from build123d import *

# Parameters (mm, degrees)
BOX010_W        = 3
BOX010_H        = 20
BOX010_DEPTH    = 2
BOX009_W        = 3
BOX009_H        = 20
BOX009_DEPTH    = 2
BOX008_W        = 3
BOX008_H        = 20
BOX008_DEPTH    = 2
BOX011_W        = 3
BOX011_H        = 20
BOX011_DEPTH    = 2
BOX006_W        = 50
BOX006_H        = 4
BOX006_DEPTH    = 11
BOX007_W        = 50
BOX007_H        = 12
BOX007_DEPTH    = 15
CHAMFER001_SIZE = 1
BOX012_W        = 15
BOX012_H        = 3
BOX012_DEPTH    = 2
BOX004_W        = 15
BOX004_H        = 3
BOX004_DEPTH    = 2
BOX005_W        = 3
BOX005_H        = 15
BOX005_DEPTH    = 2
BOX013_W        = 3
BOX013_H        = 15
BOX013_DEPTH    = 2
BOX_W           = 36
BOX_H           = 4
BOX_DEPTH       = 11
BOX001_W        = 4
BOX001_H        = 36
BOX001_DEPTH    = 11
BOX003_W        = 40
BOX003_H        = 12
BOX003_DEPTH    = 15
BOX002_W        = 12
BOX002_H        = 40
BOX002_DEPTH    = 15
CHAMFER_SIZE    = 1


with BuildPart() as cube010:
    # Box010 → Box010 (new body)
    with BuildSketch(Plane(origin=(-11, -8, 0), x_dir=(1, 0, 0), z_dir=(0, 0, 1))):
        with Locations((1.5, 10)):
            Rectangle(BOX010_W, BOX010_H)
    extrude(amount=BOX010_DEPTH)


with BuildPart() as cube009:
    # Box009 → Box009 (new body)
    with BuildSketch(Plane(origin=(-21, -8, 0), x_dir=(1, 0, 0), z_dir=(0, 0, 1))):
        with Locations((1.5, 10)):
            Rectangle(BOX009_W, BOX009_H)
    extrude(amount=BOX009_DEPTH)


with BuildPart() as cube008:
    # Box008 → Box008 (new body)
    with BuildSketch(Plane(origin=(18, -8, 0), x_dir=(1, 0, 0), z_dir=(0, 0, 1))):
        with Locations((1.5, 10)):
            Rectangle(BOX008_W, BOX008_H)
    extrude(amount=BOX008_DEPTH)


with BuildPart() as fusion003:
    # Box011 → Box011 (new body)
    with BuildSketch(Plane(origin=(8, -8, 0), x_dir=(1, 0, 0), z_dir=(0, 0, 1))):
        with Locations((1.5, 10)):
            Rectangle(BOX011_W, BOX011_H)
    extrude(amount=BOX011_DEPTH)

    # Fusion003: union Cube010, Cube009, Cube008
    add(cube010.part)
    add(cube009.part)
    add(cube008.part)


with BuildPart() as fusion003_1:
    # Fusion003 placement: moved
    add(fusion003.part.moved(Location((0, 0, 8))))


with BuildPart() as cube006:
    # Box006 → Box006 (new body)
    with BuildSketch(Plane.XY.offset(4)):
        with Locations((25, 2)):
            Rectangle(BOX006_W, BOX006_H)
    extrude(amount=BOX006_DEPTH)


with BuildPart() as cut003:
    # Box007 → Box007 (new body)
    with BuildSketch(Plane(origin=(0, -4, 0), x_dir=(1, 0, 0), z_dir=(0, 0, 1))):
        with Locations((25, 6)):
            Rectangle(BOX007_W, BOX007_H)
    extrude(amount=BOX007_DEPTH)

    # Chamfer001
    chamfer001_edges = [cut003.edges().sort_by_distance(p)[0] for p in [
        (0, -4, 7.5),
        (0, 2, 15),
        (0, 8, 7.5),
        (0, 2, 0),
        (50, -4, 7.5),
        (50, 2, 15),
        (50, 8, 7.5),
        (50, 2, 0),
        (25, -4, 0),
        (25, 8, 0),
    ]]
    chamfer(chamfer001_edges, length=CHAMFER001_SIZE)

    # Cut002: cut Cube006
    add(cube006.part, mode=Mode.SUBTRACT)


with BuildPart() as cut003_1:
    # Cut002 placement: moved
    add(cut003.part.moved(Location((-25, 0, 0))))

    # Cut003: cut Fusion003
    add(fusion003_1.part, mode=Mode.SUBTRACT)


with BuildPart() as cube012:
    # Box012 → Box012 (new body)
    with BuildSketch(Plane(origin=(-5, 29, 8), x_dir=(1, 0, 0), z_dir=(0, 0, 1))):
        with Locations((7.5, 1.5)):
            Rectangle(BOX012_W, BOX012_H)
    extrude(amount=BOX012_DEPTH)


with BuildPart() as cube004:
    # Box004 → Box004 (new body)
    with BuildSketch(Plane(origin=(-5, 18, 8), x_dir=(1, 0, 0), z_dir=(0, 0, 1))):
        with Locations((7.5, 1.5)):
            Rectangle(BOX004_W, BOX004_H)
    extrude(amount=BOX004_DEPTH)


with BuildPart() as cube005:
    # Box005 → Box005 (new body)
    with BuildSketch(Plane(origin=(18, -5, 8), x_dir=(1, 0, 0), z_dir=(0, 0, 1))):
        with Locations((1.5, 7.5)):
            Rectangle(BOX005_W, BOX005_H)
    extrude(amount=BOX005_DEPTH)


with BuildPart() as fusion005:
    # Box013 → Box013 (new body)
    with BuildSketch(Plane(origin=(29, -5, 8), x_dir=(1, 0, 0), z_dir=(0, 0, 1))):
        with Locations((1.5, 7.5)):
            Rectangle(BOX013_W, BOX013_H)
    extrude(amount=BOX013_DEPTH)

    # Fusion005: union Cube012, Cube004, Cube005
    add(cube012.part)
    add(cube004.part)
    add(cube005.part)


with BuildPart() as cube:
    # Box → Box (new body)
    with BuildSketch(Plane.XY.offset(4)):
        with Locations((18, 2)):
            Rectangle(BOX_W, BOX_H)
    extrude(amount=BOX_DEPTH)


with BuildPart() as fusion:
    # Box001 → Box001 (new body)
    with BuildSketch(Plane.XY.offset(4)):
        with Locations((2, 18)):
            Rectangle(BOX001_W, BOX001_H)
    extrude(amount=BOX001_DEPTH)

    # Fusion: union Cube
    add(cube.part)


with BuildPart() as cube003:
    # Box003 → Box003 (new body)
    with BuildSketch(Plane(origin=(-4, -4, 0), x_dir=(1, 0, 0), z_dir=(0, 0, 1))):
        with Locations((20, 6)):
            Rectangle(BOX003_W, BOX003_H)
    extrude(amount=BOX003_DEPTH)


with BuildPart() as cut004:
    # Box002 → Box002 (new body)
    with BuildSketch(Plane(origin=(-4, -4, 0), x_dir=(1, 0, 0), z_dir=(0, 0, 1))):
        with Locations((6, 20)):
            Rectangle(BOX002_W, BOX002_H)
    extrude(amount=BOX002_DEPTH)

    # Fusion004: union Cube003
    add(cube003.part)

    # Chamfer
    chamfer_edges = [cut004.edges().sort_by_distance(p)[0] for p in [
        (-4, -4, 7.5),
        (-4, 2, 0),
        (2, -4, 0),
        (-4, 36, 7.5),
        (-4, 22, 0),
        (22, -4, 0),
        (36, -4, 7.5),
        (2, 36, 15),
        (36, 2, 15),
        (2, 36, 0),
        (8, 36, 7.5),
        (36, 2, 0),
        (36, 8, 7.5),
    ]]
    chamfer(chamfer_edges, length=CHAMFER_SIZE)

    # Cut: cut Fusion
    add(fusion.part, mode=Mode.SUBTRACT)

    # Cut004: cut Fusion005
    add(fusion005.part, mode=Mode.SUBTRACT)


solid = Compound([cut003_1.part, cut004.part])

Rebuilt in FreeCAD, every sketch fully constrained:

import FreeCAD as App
import Part
import Sketcher


def edges_at(feature, points):
    """Names of the edges that pass closest to the given points."""
    edges = feature.Shape.Edges
    near = lambda p: min(range(len(edges)), key=lambda i: edges[i].distToShape(Part.Vertex(*p))[0])
    return sorted({f"Edge{near(p) + 1}" for p in points})


def add_polygon(sketch, points):
    """Adds a closed chain of lines whose ends are joined by coincident constraints."""
    first, n = sketch.GeometryCount, len(points)
    for a, b in zip(points, points[1:] + points[:1]):
        sketch.addGeometry(Part.LineSegment(App.Vector(*a, 0), App.Vector(*b, 0)), False)
    for i in range(n):
        sketch.addConstraint(Sketcher.Constraint("Coincident", first + i, 2, first + (i + 1) % n, 1))

doc = App.newDocument("Part")
params = doc.addObject("Spreadsheet::Sheet", "Params")
for row, (alias, value) in enumerate([
    ("sketch1_width", "3 mm"),
    ("sketch1_height", "20 mm"),
    ("pad1_length", "2 mm"),
    ("sketch2_width", "3 mm"),
    ("sketch2_height", "20 mm"),
    ("pad2_length", "2 mm"),
    ("sketch3_width", "3 mm"),
    ("sketch3_height", "20 mm"),
    ("pad3_length", "2 mm"),
    ("sketch4_width", "3 mm"),
    ("sketch4_height", "20 mm"),
    ("pad4_length", "2 mm"),
    ("sketch5_width", "50 mm"),
    ("sketch5_height", "4 mm"),
    ("pad5_length", "11 mm"),
    ("sketch6_width", "50 mm"),
    ("sketch6_height", "12 mm"),
    ("pad6_length", "15 mm"),
    ("chamfer_size", "1 mm"),
    ("sketch7_width", "15 mm"),
    ("sketch7_height", "3 mm"),
    ("pad7_length", "2 mm"),
    ("sketch8_width", "15 mm"),
    ("sketch8_height", "3 mm"),
    ("pad8_length", "2 mm"),
    ("sketch9_width", "3 mm"),
    ("sketch9_height", "15 mm"),
    ("pad9_length", "2 mm"),
    ("sketch10_width", "3 mm"),
    ("sketch10_height", "15 mm"),
    ("pad10_length", "2 mm"),
    ("sketch11_width", "36 mm"),
    ("sketch11_height", "4 mm"),
    ("pad11_length", "11 mm"),
    ("sketch12_width", "4 mm"),
    ("sketch12_height", "36 mm"),
    ("pad12_length", "11 mm"),
    ("sketch13_width", "40 mm"),
    ("sketch13_height", "12 mm"),
    ("pad13_length", "15 mm"),
    ("sketch14_width", "12 mm"),
    ("sketch14_height", "40 mm"),
    ("pad14_length", "15 mm"),
    ("chamfer2_size", "1 mm"),
], start=1):
    params.set(f"A{row}", alias)
    params.set(f"B{row}", "=" + value)
    params.setAlias(f"B{row}", alias)

body = doc.addObject("PartDesign::Body", "Body")

sketch1 = body.newObject("Sketcher::SketchObject", "Sketch")
sketch1.AttachmentSupport = (doc.getObject("XY_Plane"), [""])
sketch1.MapMode = "FlatFace"
add_polygon(sketch1, [(-11, 12), (-11, -8), (-8, -8), (-8, 12)])
sketch1.addConstraint(Sketcher.Constraint("Vertical", 0))
sketch1.addConstraint(Sketcher.Constraint("Horizontal", 1))
sketch1.addConstraint(Sketcher.Constraint("Vertical", 2))
sketch1.addConstraint(Sketcher.Constraint("Horizontal", 3))
sketch1.addConstraint(Sketcher.Constraint("DistanceX", 1, 1, 1, 2, 3.0))
sketch1.addConstraint(Sketcher.Constraint("DistanceY", 0, 2, 0, 1, 20.0))
sketch1.addConstraint(Sketcher.Constraint("DistanceX", 0, 2, -1, 1, 11.0))
sketch1.addConstraint(Sketcher.Constraint("DistanceY", 0, 2, -1, 1, 8.0))
sketch1.setExpression("Constraints[8]", "Params.sketch1_width")
sketch1.setExpression("Constraints[9]", "Params.sketch1_height")
pad1 = body.newObject("PartDesign::Pad", "Pad")
pad1.Profile = sketch1
pad1.setExpression("Length", "Params.pad1_length")
body2 = doc.addObject("PartDesign::Body", "Body001")

sketch2 = body2.newObject("Sketcher::SketchObject", "Sketch001")
sketch2.AttachmentSupport = (doc.getObject("XY_Plane001"), [""])
sketch2.MapMode = "FlatFace"
add_polygon(sketch2, [(-21, 12), (-21, -8), (-18, -8), (-18, 12)])
sketch2.addConstraint(Sketcher.Constraint("Vertical", 0))
sketch2.addConstraint(Sketcher.Constraint("Horizontal", 1))
sketch2.addConstraint(Sketcher.Constraint("Vertical", 2))
sketch2.addConstraint(Sketcher.Constraint("Horizontal", 3))
sketch2.addConstraint(Sketcher.Constraint("DistanceX", 1, 1, 1, 2, 3.0))
sketch2.addConstraint(Sketcher.Constraint("DistanceY", 0, 2, 0, 1, 20.0))
sketch2.addConstraint(Sketcher.Constraint("DistanceX", 0, 2, -1, 1, 21.0))
sketch2.addConstraint(Sketcher.Constraint("DistanceY", 0, 2, -1, 1, 8.0))
sketch2.setExpression("Constraints[8]", "Params.sketch2_width")
sketch2.setExpression("Constraints[9]", "Params.sketch2_height")
pad2 = body2.newObject("PartDesign::Pad", "Pad001")
pad2.Profile = sketch2
pad2.setExpression("Length", "Params.pad2_length")
body3 = doc.addObject("PartDesign::Body", "Body002")

sketch3 = body3.newObject("Sketcher::SketchObject", "Sketch002")
sketch3.AttachmentSupport = (doc.getObject("XY_Plane002"), [""])
sketch3.MapMode = "FlatFace"
add_polygon(sketch3, [(18, 12), (18, -8), (21, -8), (21, 12)])
sketch3.addConstraint(Sketcher.Constraint("Vertical", 0))
sketch3.addConstraint(Sketcher.Constraint("Horizontal", 1))
sketch3.addConstraint(Sketcher.Constraint("Vertical", 2))
sketch3.addConstraint(Sketcher.Constraint("Horizontal", 3))
sketch3.addConstraint(Sketcher.Constraint("DistanceX", 1, 1, 1, 2, 3.0))
sketch3.addConstraint(Sketcher.Constraint("DistanceY", 0, 2, 0, 1, 20.0))
sketch3.addConstraint(Sketcher.Constraint("DistanceX", -1, 1, 0, 2, 18.0))
sketch3.addConstraint(Sketcher.Constraint("DistanceY", 0, 2, -1, 1, 8.0))
sketch3.setExpression("Constraints[8]", "Params.sketch3_width")
sketch3.setExpression("Constraints[9]", "Params.sketch3_height")
pad3 = body3.newObject("PartDesign::Pad", "Pad002")
pad3.Profile = sketch3
pad3.setExpression("Length", "Params.pad3_length")
body4 = doc.addObject("PartDesign::Body", "Body003")
body4.AllowCompound = True

sketch4 = body4.newObject("Sketcher::SketchObject", "Sketch003")
sketch4.AttachmentSupport = (doc.getObject("XY_Plane003"), [""])
sketch4.MapMode = "FlatFace"
add_polygon(sketch4, [(8, 12), (8, -8), (11, -8), (11, 12)])
sketch4.addConstraint(Sketcher.Constraint("Vertical", 0))
sketch4.addConstraint(Sketcher.Constraint("Horizontal", 1))
sketch4.addConstraint(Sketcher.Constraint("Vertical", 2))
sketch4.addConstraint(Sketcher.Constraint("Horizontal", 3))
sketch4.addConstraint(Sketcher.Constraint("DistanceX", 1, 1, 1, 2, 3.0))
sketch4.addConstraint(Sketcher.Constraint("DistanceY", 0, 2, 0, 1, 20.0))
sketch4.addConstraint(Sketcher.Constraint("DistanceX", -1, 1, 0, 2, 8.0))
sketch4.addConstraint(Sketcher.Constraint("DistanceY", 0, 2, -1, 1, 8.0))
sketch4.setExpression("Constraints[8]", "Params.sketch4_width")
sketch4.setExpression("Constraints[9]", "Params.sketch4_height")
pad4 = body4.newObject("PartDesign::Pad", "Pad003")
pad4.Profile = sketch4
pad4.setExpression("Length", "Params.pad4_length")
doc.recompute()

boolean = body4.newObject("PartDesign::Boolean", "Boolean")
boolean.Type = "Fuse"
boolean.addObjects([body])
doc.recompute()

boolean2 = body4.newObject("PartDesign::Boolean", "Boolean001")
boolean2.Type = "Fuse"
boolean2.addObjects([body2])
doc.recompute()

boolean3 = body4.newObject("PartDesign::Boolean", "Boolean002")
boolean3.Type = "Fuse"
boolean3.addObjects([body3])
body5 = doc.addObject("PartDesign::Body", "Body004")
body5.AllowCompound = True
doc.recompute()

body4.Placement = App.Placement(App.Vector(0, 0, 8), App.Rotation(App.Vector(0, 0, 1), 0))
boolean4 = body5.newObject("PartDesign::Boolean", "Boolean003")
boolean4.Type = "Fuse"
boolean4.addObjects([body4])
body6 = doc.addObject("PartDesign::Body", "Body005")

sketch5 = body6.newObject("Sketcher::SketchObject", "Sketch004")
sketch5.AttachmentSupport = (doc.getObject("XY_Plane005"), [""])
sketch5.MapMode = "FlatFace"
sketch5.AttachmentOffset = App.Placement(App.Vector(0, 0, 4), App.Rotation())
add_polygon(sketch5, [(0, 4), (0, 0), (50, 0), (50, 4)])
sketch5.addConstraint(Sketcher.Constraint("Vertical", 0))
sketch5.addConstraint(Sketcher.Constraint("Horizontal", 1))
sketch5.addConstraint(Sketcher.Constraint("Vertical", 2))
sketch5.addConstraint(Sketcher.Constraint("Horizontal", 3))
sketch5.addConstraint(Sketcher.Constraint("Coincident", 0, 2, -1, 1))
sketch5.addConstraint(Sketcher.Constraint("DistanceX", 1, 1, 1, 2, 50.0))
sketch5.addConstraint(Sketcher.Constraint("DistanceY", 0, 2, 0, 1, 4.0))
sketch5.setExpression("Constraints[9]", "Params.sketch5_width")
sketch5.setExpression("Constraints[10]", "Params.sketch5_height")
pad5 = body6.newObject("PartDesign::Pad", "Pad004")
pad5.Profile = sketch5
pad5.setExpression("Length", "Params.pad5_length")
body7 = doc.addObject("PartDesign::Body", "Body006")

sketch6 = body7.newObject("Sketcher::SketchObject", "Sketch005")
sketch6.AttachmentSupport = (doc.getObject("XY_Plane006"), [""])
sketch6.MapMode = "FlatFace"
add_polygon(sketch6, [(0, 8), (0, -4), (50, -4), (50, 8)])
sketch6.addConstraint(Sketcher.Constraint("Vertical", 0))
sketch6.addConstraint(Sketcher.Constraint("Horizontal", 1))
sketch6.addConstraint(Sketcher.Constraint("Vertical", 2))
sketch6.addConstraint(Sketcher.Constraint("Horizontal", 3))
sketch6.addConstraint(Sketcher.Constraint("PointOnObject", 0, 2, -2))
sketch6.addConstraint(Sketcher.Constraint("DistanceX", 1, 1, 1, 2, 50.0))
sketch6.addConstraint(Sketcher.Constraint("DistanceY", 0, 2, 0, 1, 12.0))
sketch6.addConstraint(Sketcher.Constraint("DistanceY", 0, 2, -1, 1, 4.0))
sketch6.setExpression("Constraints[9]", "Params.sketch6_width")
sketch6.setExpression("Constraints[10]", "Params.sketch6_height")
pad6 = body7.newObject("PartDesign::Pad", "Pad005")
pad6.Profile = sketch6
pad6.setExpression("Length", "Params.pad6_length")
doc.recompute()

chamfer = body7.newObject("PartDesign::Chamfer", "Chamfer")
chamfer.Base = (pad6, edges_at(pad6, [
    (0, -4, 7.5),
    (0, 2, 15),
    (0, 8, 7.5),
    (0, 2, 0),
    (50, -4, 7.5),
    (50, 2, 15),
    (50, 8, 7.5),
    (50, 2, 0),
    (25, -4, 0),
    (25, 8, 0),
]))
chamfer.setExpression("Size", "Params.chamfer_size")
doc.recompute()

boolean5 = body7.newObject("PartDesign::Boolean", "Boolean004")
boolean5.Type = "Cut"
boolean5.addObjects([body6])
body8 = doc.addObject("PartDesign::Body", "Body007")
doc.recompute()

body7.Placement = App.Placement(App.Vector(-25, 0, 0), App.Rotation(App.Vector(0, 0, 1), 0))
boolean6 = body8.newObject("PartDesign::Boolean", "Boolean005")
boolean6.Type = "Fuse"
boolean6.addObjects([body7])
doc.recompute()

boolean7 = body8.newObject("PartDesign::Boolean", "Boolean006")
boolean7.Type = "Cut"
boolean7.addObjects([body5])
body9 = doc.addObject("PartDesign::Body", "Body008")

sketch7 = body9.newObject("Sketcher::SketchObject", "Sketch006")
sketch7.AttachmentSupport = (doc.getObject("XY_Plane008"), [""])
sketch7.MapMode = "FlatFace"
sketch7.AttachmentOffset = App.Placement(App.Vector(0, 0, 8), App.Rotation())
add_polygon(sketch7, [(-5, 32), (-5, 29), (10, 29), (10, 32)])
sketch7.addConstraint(Sketcher.Constraint("Vertical", 0))
sketch7.addConstraint(Sketcher.Constraint("Horizontal", 1))
sketch7.addConstraint(Sketcher.Constraint("Vertical", 2))
sketch7.addConstraint(Sketcher.Constraint("Horizontal", 3))
sketch7.addConstraint(Sketcher.Constraint("DistanceX", 1, 1, 1, 2, 15.0))
sketch7.addConstraint(Sketcher.Constraint("DistanceY", 0, 2, 0, 1, 3.0))
sketch7.addConstraint(Sketcher.Constraint("DistanceX", 0, 2, -1, 1, 5.0))
sketch7.addConstraint(Sketcher.Constraint("DistanceY", -1, 1, 0, 2, 29.0))
sketch7.setExpression("Constraints[8]", "Params.sketch7_width")
sketch7.setExpression("Constraints[9]", "Params.sketch7_height")
pad7 = body9.newObject("PartDesign::Pad", "Pad006")
pad7.Profile = sketch7
pad7.setExpression("Length", "Params.pad7_length")
body10 = doc.addObject("PartDesign::Body", "Body009")

sketch8 = body10.newObject("Sketcher::SketchObject", "Sketch007")
sketch8.AttachmentSupport = (doc.getObject("XY_Plane009"), [""])
sketch8.MapMode = "FlatFace"
sketch8.AttachmentOffset = App.Placement(App.Vector(0, 0, 8), App.Rotation())
add_polygon(sketch8, [(-5, 21), (-5, 18), (10, 18), (10, 21)])
sketch8.addConstraint(Sketcher.Constraint("Vertical", 0))
sketch8.addConstraint(Sketcher.Constraint("Horizontal", 1))
sketch8.addConstraint(Sketcher.Constraint("Vertical", 2))
sketch8.addConstraint(Sketcher.Constraint("Horizontal", 3))
sketch8.addConstraint(Sketcher.Constraint("DistanceX", 1, 1, 1, 2, 15.0))
sketch8.addConstraint(Sketcher.Constraint("DistanceY", 0, 2, 0, 1, 3.0))
sketch8.addConstraint(Sketcher.Constraint("DistanceX", 0, 2, -1, 1, 5.0))
sketch8.addConstraint(Sketcher.Constraint("DistanceY", -1, 1, 0, 2, 18.0))
sketch8.setExpression("Constraints[8]", "Params.sketch8_width")
sketch8.setExpression("Constraints[9]", "Params.sketch8_height")
pad8 = body10.newObject("PartDesign::Pad", "Pad007")
pad8.Profile = sketch8
pad8.setExpression("Length", "Params.pad8_length")
body11 = doc.addObject("PartDesign::Body", "Body010")

sketch9 = body11.newObject("Sketcher::SketchObject", "Sketch008")
sketch9.AttachmentSupport = (doc.getObject("XY_Plane010"), [""])
sketch9.MapMode = "FlatFace"
sketch9.AttachmentOffset = App.Placement(App.Vector(0, 0, 8), App.Rotation())
add_polygon(sketch9, [(18, 10), (18, -5), (21, -5), (21, 10)])
sketch9.addConstraint(Sketcher.Constraint("Vertical", 0))
sketch9.addConstraint(Sketcher.Constraint("Horizontal", 1))
sketch9.addConstraint(Sketcher.Constraint("Vertical", 2))
sketch9.addConstraint(Sketcher.Constraint("Horizontal", 3))
sketch9.addConstraint(Sketcher.Constraint("DistanceX", 1, 1, 1, 2, 3.0))
sketch9.addConstraint(Sketcher.Constraint("DistanceY", 0, 2, 0, 1, 15.0))
sketch9.addConstraint(Sketcher.Constraint("DistanceX", -1, 1, 0, 2, 18.0))
sketch9.addConstraint(Sketcher.Constraint("DistanceY", 0, 2, -1, 1, 5.0))
sketch9.setExpression("Constraints[8]", "Params.sketch9_width")
sketch9.setExpression("Constraints[9]", "Params.sketch9_height")
pad9 = body11.newObject("PartDesign::Pad", "Pad008")
pad9.Profile = sketch9
pad9.setExpression("Length", "Params.pad9_length")
body12 = doc.addObject("PartDesign::Body", "Body011")
body12.AllowCompound = True

sketch10 = body12.newObject("Sketcher::SketchObject", "Sketch009")
sketch10.AttachmentSupport = (doc.getObject("XY_Plane011"), [""])
sketch10.MapMode = "FlatFace"
sketch10.AttachmentOffset = App.Placement(App.Vector(0, 0, 8), App.Rotation())
add_polygon(sketch10, [(29, 10), (29, -5), (32, -5), (32, 10)])
sketch10.addConstraint(Sketcher.Constraint("Vertical", 0))
sketch10.addConstraint(Sketcher.Constraint("Horizontal", 1))
sketch10.addConstraint(Sketcher.Constraint("Vertical", 2))
sketch10.addConstraint(Sketcher.Constraint("Horizontal", 3))
sketch10.addConstraint(Sketcher.Constraint("DistanceX", 1, 1, 1, 2, 3.0))
sketch10.addConstraint(Sketcher.Constraint("DistanceY", 0, 2, 0, 1, 15.0))
sketch10.addConstraint(Sketcher.Constraint("DistanceX", -1, 1, 0, 2, 29.0))
sketch10.addConstraint(Sketcher.Constraint("DistanceY", 0, 2, -1, 1, 5.0))
sketch10.setExpression("Constraints[8]", "Params.sketch10_width")
sketch10.setExpression("Constraints[9]", "Params.sketch10_height")
pad10 = body12.newObject("PartDesign::Pad", "Pad009")
pad10.Profile = sketch10
pad10.setExpression("Length", "Params.pad10_length")
doc.recompute()

boolean8 = body12.newObject("PartDesign::Boolean", "Boolean007")
boolean8.Type = "Fuse"
boolean8.addObjects([body9])
doc.recompute()

boolean9 = body12.newObject("PartDesign::Boolean", "Boolean008")
boolean9.Type = "Fuse"
boolean9.addObjects([body10])
doc.recompute()

boolean10 = body12.newObject("PartDesign::Boolean", "Boolean009")
boolean10.Type = "Fuse"
boolean10.addObjects([body11])
body13 = doc.addObject("PartDesign::Body", "Body012")

sketch11 = body13.newObject("Sketcher::SketchObject", "Sketch010")
sketch11.AttachmentSupport = (doc.getObject("XY_Plane012"), [""])
sketch11.MapMode = "FlatFace"
sketch11.AttachmentOffset = App.Placement(App.Vector(0, 0, 4), App.Rotation())
add_polygon(sketch11, [(0, 4), (0, 0), (36, 0), (36, 4)])
sketch11.addConstraint(Sketcher.Constraint("Vertical", 0))
sketch11.addConstraint(Sketcher.Constraint("Horizontal", 1))
sketch11.addConstraint(Sketcher.Constraint("Vertical", 2))
sketch11.addConstraint(Sketcher.Constraint("Horizontal", 3))
sketch11.addConstraint(Sketcher.Constraint("Coincident", 0, 2, -1, 1))
sketch11.addConstraint(Sketcher.Constraint("DistanceX", 1, 1, 1, 2, 36.0))
sketch11.addConstraint(Sketcher.Constraint("DistanceY", 0, 2, 0, 1, 4.0))
sketch11.setExpression("Constraints[9]", "Params.sketch11_width")
sketch11.setExpression("Constraints[10]", "Params.sketch11_height")
pad11 = body13.newObject("PartDesign::Pad", "Pad010")
pad11.Profile = sketch11
pad11.setExpression("Length", "Params.pad11_length")
body14 = doc.addObject("PartDesign::Body", "Body013")

sketch12 = body14.newObject("Sketcher::SketchObject", "Sketch011")
sketch12.AttachmentSupport = (doc.getObject("XY_Plane013"), [""])
sketch12.MapMode = "FlatFace"
sketch12.AttachmentOffset = App.Placement(App.Vector(0, 0, 4), App.Rotation())
add_polygon(sketch12, [(0, 36), (0, 0), (4, 0), (4, 36)])
sketch12.addConstraint(Sketcher.Constraint("Vertical", 0))
sketch12.addConstraint(Sketcher.Constraint("Horizontal", 1))
sketch12.addConstraint(Sketcher.Constraint("Vertical", 2))
sketch12.addConstraint(Sketcher.Constraint("Horizontal", 3))
sketch12.addConstraint(Sketcher.Constraint("Coincident", 0, 2, -1, 1))
sketch12.addConstraint(Sketcher.Constraint("DistanceX", 1, 1, 1, 2, 4.0))
sketch12.addConstraint(Sketcher.Constraint("DistanceY", 0, 2, 0, 1, 36.0))
sketch12.setExpression("Constraints[9]", "Params.sketch12_width")
sketch12.setExpression("Constraints[10]", "Params.sketch12_height")
pad12 = body14.newObject("PartDesign::Pad", "Pad011")
pad12.Profile = sketch12
pad12.setExpression("Length", "Params.pad12_length")
doc.recompute()

boolean11 = body14.newObject("PartDesign::Boolean", "Boolean010")
boolean11.Type = "Fuse"
boolean11.addObjects([body13])
body15 = doc.addObject("PartDesign::Body", "Body014")

sketch13 = body15.newObject("Sketcher::SketchObject", "Sketch012")
sketch13.AttachmentSupport = (doc.getObject("XY_Plane014"), [""])
sketch13.MapMode = "FlatFace"
add_polygon(sketch13, [(-4, 8), (-4, -4), (36, -4), (36, 8)])
sketch13.addConstraint(Sketcher.Constraint("Vertical", 0))
sketch13.addConstraint(Sketcher.Constraint("Horizontal", 1))
sketch13.addConstraint(Sketcher.Constraint("Vertical", 2))
sketch13.addConstraint(Sketcher.Constraint("Horizontal", 3))
sketch13.addConstraint(Sketcher.Constraint("DistanceX", 1, 1, 1, 2, 40.0))
sketch13.addConstraint(Sketcher.Constraint("DistanceY", 0, 2, 0, 1, 12.0))
sketch13.addConstraint(Sketcher.Constraint("DistanceX", 0, 2, -1, 1, 4.0))
sketch13.addConstraint(Sketcher.Constraint("DistanceY", 0, 2, -1, 1, 4.0))
sketch13.setExpression("Constraints[8]", "Params.sketch13_width")
sketch13.setExpression("Constraints[9]", "Params.sketch13_height")
pad13 = body15.newObject("PartDesign::Pad", "Pad012")
pad13.Profile = sketch13
pad13.setExpression("Length", "Params.pad13_length")
body16 = doc.addObject("PartDesign::Body", "Body015")

sketch14 = body16.newObject("Sketcher::SketchObject", "Sketch013")
sketch14.AttachmentSupport = (doc.getObject("XY_Plane015"), [""])
sketch14.MapMode = "FlatFace"
add_polygon(sketch14, [(-4, 36), (-4, -4), (8, -4), (8, 36)])
sketch14.addConstraint(Sketcher.Constraint("Vertical", 0))
sketch14.addConstraint(Sketcher.Constraint("Horizontal", 1))
sketch14.addConstraint(Sketcher.Constraint("Vertical", 2))
sketch14.addConstraint(Sketcher.Constraint("Horizontal", 3))
sketch14.addConstraint(Sketcher.Constraint("DistanceX", 1, 1, 1, 2, 12.0))
sketch14.addConstraint(Sketcher.Constraint("DistanceY", 0, 2, 0, 1, 40.0))
sketch14.addConstraint(Sketcher.Constraint("DistanceX", 0, 2, -1, 1, 4.0))
sketch14.addConstraint(Sketcher.Constraint("DistanceY", 0, 2, -1, 1, 4.0))
sketch14.setExpression("Constraints[8]", "Params.sketch14_width")
sketch14.setExpression("Constraints[9]", "Params.sketch14_height")
pad14 = body16.newObject("PartDesign::Pad", "Pad013")
pad14.Profile = sketch14
pad14.setExpression("Length", "Params.pad14_length")
doc.recompute()

boolean12 = body16.newObject("PartDesign::Boolean", "Boolean011")
boolean12.Type = "Fuse"
boolean12.addObjects([body15])
doc.recompute()

chamfer2 = body16.newObject("PartDesign::Chamfer", "Chamfer001")
chamfer2.Base = (boolean12, edges_at(boolean12, [
    (-4, -4, 7.5),
    (-4, 16, 0),
    (16, -4, 0),
    (-4, 36, 7.5),
    (-4, 16, 0),
    (16, -4, 0),
    (36, -4, 7.5),
    (2, 36, 15),
    (36, 2, 15),
    (2, 36, 0),
    (8, 36, 7.5),
    (36, 2, 0),
    (36, 8, 7.5),
]))
chamfer2.setExpression("Size", "Params.chamfer2_size")
doc.recompute()

boolean13 = body16.newObject("PartDesign::Boolean", "Boolean012")
boolean13.Type = "Cut"
boolean13.addObjects([body14])
doc.recompute()

boolean14 = body16.newObject("PartDesign::Boolean", "Boolean013")
boolean14.Type = "Cut"
boolean14.addObjects([body12])

doc.recompute()
